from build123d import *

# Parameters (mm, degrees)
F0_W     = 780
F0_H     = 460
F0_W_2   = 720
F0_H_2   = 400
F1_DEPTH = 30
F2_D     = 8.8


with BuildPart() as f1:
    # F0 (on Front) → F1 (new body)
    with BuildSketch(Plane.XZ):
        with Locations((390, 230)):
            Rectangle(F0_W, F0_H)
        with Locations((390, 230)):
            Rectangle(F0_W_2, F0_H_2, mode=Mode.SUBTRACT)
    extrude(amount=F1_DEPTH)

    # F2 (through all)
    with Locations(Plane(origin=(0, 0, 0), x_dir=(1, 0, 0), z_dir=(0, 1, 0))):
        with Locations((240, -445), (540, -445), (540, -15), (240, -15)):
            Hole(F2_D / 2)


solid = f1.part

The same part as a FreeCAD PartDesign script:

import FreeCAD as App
import Part
import Sketcher

V = App.Vector


def add_polygon(sketch, points):
    """Adds a closed chain of lines whose ends are joined by coincident constraints."""
    first, n = sketch.GeometryCount, len(points)
    for a, b in zip(points, points[1:] + points[:1]):
        sketch.addGeometry(Part.LineSegment(App.Vector(*a, 0), App.Vector(*b, 0)), False)
    for i in range(n):
        sketch.addConstraint(Sketcher.Constraint("Coincident", first + i, 2, first + (i + 1) % n, 1))

doc = App.newDocument("Part")
body = doc.addObject("PartDesign::Body", "Body")

sketch1 = body.newObject("Sketcher::SketchObject", "Sketch")
sketch1.AttachmentSupport = (doc.getObject("XZ_Plane"), [""])
sketch1.MapMode = "FlatFace"
add_polygon(sketch1, [(0, 460), (0, 0), (780, 0), (780, 460)])
add_polygon(sketch1, [(750, 30), (30, 30), (30, 430), (750, 430)])
sketch1.addConstraint([
    Sketcher.Constraint("Vertical", 0),
    Sketcher.Constraint("Horizontal", 1),
    Sketcher.Constraint("Vertical", 2),
    Sketcher.Constraint("Horizontal", 3),
    Sketcher.Constraint("Horizontal", 4),
    Sketcher.Constraint("Vertical", 5),
    Sketcher.Constraint("Horizontal", 6),
    Sketcher.Constraint("Vertical", 7),
    Sketcher.Constraint("Coincident", 0, 2, -1, 1),
    Sketcher.Constraint("DistanceX", 1, 1, 1, 2, 780.0),
    Sketcher.Constraint("DistanceX", 4, 2, 4, 1, 720.0),
    Sketcher.Constraint("DistanceY", 0, 2, 0, 1, 460.0),
    Sketcher.Constraint("DistanceY", 5, 1, 5, 2, 400.0),
    Sketcher.Constraint("DistanceX", -1, 1, 4, 2, 30.0),
    Sketcher.Constraint("DistanceY", -1, 1, 4, 2, 30.0),
])
pad1 = body.newObject("PartDesign::Pad", "Pad")
pad1.Profile = sketch1
pad1.Length = 30

sketch2 = body.newObject("Sketcher::SketchObject", "Sketch001")
sketch2.AttachmentSupport = (doc.getObject("XZ_Plane"), [""])
sketch2.MapMode = "FlatFace"
sketch2.addGeometry([
    Part.Circle(V(240, 445, 0), V(0, 0, 1), 4.4),
    Part.Circle(V(540, 445, 0), V(0, 0, 1), 4.4),
    Part.Circle(V(540, 15, 0), V(0, 0, 1), 4.4),
    Part.Circle(V(240, 15, 0), V(0, 0, 1), 4.4),
], False)
sketch2.addConstraint([
    Sketcher.Constraint("Equal", 0, 1),
    Sketcher.Constraint("Equal", 1, 2),
    Sketcher.Constraint("Equal", 2, 3),
    Sketcher.Constraint("Horizontal", 0, 3, 1, 3),
    Sketcher.Constraint("Horizontal", 2, 3, 3, 3),
    Sketcher.Constraint("Vertical", 1, 3, 2, 3),
    Sketcher.Constraint("Vertical", 0, 3, 3, 3),
    Sketcher.Constraint("Diameter", 0, 8.8),
    Sketcher.Constraint("DistanceX", -1, 1, 0, 3, 240.0),
    Sketcher.Constraint("DistanceY", -1, 1, 0, 3, 445.0),
    Sketcher.Constraint("DistanceX", -1, 1, 1, 3, 540.0),
    Sketcher.Constraint("DistanceY", -1, 1, 2, 3, 15.0),
])
doc.recompute()
hole = body.newObject("PartDesign::Hole", "Hole")
hole.Profile = sketch2
hole.ThreadType = "None"
hole.Diameter = 8.8
hole.DepthType = "ThroughAll"
hole.Reversed = True

doc.recompute()
